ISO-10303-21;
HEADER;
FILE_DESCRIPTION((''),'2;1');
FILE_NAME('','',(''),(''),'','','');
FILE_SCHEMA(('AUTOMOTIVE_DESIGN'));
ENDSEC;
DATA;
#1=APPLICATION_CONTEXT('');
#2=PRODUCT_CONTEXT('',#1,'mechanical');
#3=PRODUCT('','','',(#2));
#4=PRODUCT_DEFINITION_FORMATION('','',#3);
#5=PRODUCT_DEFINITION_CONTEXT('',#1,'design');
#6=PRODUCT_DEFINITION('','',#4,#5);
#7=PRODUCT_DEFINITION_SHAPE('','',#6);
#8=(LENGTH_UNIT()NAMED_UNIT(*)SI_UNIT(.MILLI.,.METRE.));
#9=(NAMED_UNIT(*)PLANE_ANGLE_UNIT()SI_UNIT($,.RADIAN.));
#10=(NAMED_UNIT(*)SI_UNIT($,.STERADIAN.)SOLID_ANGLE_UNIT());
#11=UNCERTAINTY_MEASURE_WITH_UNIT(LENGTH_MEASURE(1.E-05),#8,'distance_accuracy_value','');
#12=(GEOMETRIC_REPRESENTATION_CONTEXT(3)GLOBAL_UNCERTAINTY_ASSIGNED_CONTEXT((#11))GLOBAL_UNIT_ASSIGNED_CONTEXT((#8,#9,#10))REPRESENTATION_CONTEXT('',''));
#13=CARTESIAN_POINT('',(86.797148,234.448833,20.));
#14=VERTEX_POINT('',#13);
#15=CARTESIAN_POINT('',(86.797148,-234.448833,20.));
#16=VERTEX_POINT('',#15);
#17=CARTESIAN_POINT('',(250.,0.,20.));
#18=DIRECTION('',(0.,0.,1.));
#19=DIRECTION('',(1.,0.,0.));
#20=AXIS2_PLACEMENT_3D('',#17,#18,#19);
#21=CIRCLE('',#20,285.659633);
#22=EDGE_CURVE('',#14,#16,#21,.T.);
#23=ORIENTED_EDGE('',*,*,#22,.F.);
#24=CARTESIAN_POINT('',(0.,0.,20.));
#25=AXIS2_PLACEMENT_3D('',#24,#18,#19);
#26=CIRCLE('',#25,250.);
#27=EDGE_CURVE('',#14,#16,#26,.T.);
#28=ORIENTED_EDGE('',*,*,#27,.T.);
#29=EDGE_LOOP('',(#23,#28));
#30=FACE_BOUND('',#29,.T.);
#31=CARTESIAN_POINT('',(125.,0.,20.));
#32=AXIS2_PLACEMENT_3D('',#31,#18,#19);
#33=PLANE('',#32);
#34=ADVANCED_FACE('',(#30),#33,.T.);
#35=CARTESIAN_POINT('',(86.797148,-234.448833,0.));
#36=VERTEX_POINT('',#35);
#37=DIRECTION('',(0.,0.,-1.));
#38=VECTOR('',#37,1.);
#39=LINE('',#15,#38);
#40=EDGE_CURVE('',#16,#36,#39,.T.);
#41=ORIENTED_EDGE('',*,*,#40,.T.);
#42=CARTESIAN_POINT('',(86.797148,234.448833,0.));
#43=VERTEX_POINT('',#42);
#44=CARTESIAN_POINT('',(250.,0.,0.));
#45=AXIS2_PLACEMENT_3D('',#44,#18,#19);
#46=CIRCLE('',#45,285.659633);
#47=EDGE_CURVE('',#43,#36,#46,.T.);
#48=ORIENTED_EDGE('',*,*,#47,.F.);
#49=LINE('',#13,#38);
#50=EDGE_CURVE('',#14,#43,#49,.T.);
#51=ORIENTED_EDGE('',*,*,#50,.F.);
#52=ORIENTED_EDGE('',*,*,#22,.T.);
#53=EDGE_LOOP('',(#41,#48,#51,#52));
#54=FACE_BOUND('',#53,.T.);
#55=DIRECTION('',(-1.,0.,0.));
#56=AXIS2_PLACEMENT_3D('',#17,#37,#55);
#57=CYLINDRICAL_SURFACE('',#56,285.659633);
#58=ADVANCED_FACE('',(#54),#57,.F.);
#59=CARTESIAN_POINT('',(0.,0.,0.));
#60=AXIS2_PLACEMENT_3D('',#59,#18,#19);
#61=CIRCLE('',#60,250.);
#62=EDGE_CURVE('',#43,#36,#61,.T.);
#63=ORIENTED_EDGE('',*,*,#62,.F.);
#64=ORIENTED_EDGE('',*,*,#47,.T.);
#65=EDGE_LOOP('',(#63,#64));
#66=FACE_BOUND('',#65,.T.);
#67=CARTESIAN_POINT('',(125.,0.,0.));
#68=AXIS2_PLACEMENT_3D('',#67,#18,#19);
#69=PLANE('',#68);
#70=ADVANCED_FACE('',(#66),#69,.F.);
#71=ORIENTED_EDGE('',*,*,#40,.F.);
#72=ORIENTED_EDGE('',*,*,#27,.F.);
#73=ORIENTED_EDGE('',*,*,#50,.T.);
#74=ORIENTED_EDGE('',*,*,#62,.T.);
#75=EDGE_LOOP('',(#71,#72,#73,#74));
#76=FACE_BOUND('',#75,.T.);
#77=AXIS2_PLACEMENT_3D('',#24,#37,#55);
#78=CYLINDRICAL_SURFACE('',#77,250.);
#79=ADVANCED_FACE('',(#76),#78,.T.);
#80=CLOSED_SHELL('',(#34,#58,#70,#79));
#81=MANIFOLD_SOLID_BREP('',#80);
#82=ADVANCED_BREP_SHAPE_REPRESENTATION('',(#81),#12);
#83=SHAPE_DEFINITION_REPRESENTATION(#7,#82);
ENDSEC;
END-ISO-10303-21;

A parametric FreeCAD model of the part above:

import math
import FreeCAD as App
import Part
import Sketcher
from FreeCAD import Vector
Q = App.Units.Quantity

doc = App.newDocument("Part")
body = doc.addObject("PartDesign::Body", "Body")

# Sketch on XY plane
sketch1 = body.newObject("Sketcher::SketchObject", "Sketch")
sketch1.AttachmentSupport = (doc.getObject("XY_Plane"), [""])
sketch1.MapMode = "FlatFace"
sketch1.addGeometry([
    Part.ArcOfCircle(Part.Circle(Vector(0, 0, 0), Vector(0, 0, 1), 250), math.radians(70), math.radians(290)),
    Part.ArcOfCircle(Part.Circle(Vector(250, 0, 0), Vector(0, 0, 1), 286), math.radians(125), math.radians(235)),
], False)
sketch1.addConstraint([
    Sketcher.Constraint("Coincident", 0, 1, 1, 1),
    Sketcher.Constraint("Coincident", 1, 2, 0, 2),
    Sketcher.Constraint("Coincident", 0, 3, -1, 1),
    Sketcher.Constraint("PointOnObject", 1, 3, -1),
    Sketcher.Constraint("Radius", 0, Q("250 mm")),
    Sketcher.Constraint("DistanceX", -1, 1, 1, 3, Q("250 mm")),
    Sketcher.Constraint("Radius", 1, Q("285.659633 mm")),
])
pad1 = body.newObject("PartDesign::Pad", "Pad")
pad1.Profile = sketch1
pad1.Length = 20

doc.recompute()
